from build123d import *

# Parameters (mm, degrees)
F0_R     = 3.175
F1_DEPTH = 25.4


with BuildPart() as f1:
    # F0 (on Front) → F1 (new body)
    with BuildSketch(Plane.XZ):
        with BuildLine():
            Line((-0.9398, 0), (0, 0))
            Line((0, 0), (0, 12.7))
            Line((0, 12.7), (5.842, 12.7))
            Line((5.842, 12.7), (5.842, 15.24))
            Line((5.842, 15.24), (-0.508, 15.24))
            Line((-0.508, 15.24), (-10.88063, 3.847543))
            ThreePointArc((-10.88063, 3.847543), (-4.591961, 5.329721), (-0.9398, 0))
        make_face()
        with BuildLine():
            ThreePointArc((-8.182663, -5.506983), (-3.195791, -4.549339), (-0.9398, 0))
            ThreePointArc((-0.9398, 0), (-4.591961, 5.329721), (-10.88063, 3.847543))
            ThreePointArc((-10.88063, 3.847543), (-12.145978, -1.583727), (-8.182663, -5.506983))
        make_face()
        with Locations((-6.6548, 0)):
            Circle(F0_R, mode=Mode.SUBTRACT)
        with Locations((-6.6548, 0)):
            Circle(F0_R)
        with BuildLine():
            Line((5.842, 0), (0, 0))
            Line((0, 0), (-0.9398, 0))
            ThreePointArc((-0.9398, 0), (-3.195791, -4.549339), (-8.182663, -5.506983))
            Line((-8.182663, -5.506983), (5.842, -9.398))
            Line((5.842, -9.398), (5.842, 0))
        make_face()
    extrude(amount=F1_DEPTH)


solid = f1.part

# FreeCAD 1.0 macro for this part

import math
import FreeCAD as App
import Part
import Sketcher
Q = App.Units.Quantity

doc = App.newDocument("Part")
body = doc.addObject("PartDesign::Body", "Body")

# Sketch on XZ plane
sketch1 = doc.addObject("Sketcher::SketchObject", "Sketch")
body.addObject(sketch1)
sketch1.AttachmentSupport = (doc.XZ_Plane, [""])
sketch1.MapMode = "FlatFace"
sketch1.addGeometry([
    Part.LineSegment(App.Vector(0, 0, 0), App.Vector(0, 12.7, 0)),  # 0
    Part.LineSegment(App.Vector(0, 12.7, 0), App.Vector(5.8, 12.7, 0)),  # 1
    Part.LineSegment(App.Vector(5.8, 12.7, 0), App.Vector(5.8, 15.2, 0)),  # 2
    Part.LineSegment(App.Vector(5.8, 15.2, 0), App.Vector(-0.5, 15.2, 0)),  # 3
    Part.LineSegment(App.Vector(-0.5, 15.2, 0), App.Vector(-10.9, 3.8, 0)),  # 4
    Part.ArcOfCircle(Part.Circle(App.Vector(-6.7, 0, 0), App.Vector(0, 0, 1), 5.7), math.radians(138), math.radians(254)),  # 5
    Part.LineSegment(App.Vector(-8.2, -5.5, 0), App.Vector(5.8, -9.4, 0)),  # 6
    Part.LineSegment(App.Vector(5.8, -9.4, 0), App.Vector(5.8, 0, 0)),  # 7
    Part.LineSegment(App.Vector(5.8, 0, 0), App.Vector(0, 0, 0)),  # 8
], False)
sketch1.addConstraint([
    Sketcher.Constraint("Coincident", 0, 2, 1, 1),
    Sketcher.Constraint("Coincident", 1, 2, 2, 1),
    Sketcher.Constraint("Coincident", 2, 2, 3, 1),
    Sketcher.Constraint("Coincident", 3, 2, 4, 1),
    Sketcher.Constraint("Tangent", 4, 2, 5, 1),
    Sketcher.Constraint("Tangent", 5, 2, 6, 1),
    Sketcher.Constraint("Coincident", 6, 2, 7, 1),
    Sketcher.Constraint("Coincident", 7, 2, 8, 1),
    Sketcher.Constraint("Coincident", 8, 2, 0, 1),
    Sketcher.Constraint("Vertical", 0),
    Sketcher.Constraint("Horizontal", 1),
    Sketcher.Constraint("Vertical", 2),
    Sketcher.Constraint("Horizontal", 3),
    Sketcher.Constraint("Vertical", 7),
    Sketcher.Constraint("Horizontal", 8),
    Sketcher.Constraint("Coincident", 8, 2, -1, 1),
    Sketcher.Constraint("PointOnObject", 5, 3, -1),
    Sketcher.Constraint("Vertical", 2, 2, 6, 2),
    Sketcher.Constraint("DistanceY", 0, 1, 0, 2, Q("0.5 in")),
    Sketcher.Constraint("DistanceY", 2, 1, 2, 2, Q("0.1 in")),
    Sketcher.Constraint("Radius", 5, Q("0.225 in")),
    Sketcher.Constraint("DistanceX", 1, 1, 1, 2, Q("0.23 in")),
    Sketcher.Constraint("DistanceX", 3, 2, 3, 1, Q("0.25 in")),
    Sketcher.Constraint("DistanceY", 7, 1, 7, 2, Q("0.37 in")),
    Sketcher.Constraint("DistanceX", 5, 3, -1, 1, Q("0.262 in")),
])
pad1 = doc.addObject("PartDesign::Pad", "Pad")
body.addObject(pad1)
pad1.Profile = sketch1
pad1.Length = Q("1 in")

doc.recompute()
